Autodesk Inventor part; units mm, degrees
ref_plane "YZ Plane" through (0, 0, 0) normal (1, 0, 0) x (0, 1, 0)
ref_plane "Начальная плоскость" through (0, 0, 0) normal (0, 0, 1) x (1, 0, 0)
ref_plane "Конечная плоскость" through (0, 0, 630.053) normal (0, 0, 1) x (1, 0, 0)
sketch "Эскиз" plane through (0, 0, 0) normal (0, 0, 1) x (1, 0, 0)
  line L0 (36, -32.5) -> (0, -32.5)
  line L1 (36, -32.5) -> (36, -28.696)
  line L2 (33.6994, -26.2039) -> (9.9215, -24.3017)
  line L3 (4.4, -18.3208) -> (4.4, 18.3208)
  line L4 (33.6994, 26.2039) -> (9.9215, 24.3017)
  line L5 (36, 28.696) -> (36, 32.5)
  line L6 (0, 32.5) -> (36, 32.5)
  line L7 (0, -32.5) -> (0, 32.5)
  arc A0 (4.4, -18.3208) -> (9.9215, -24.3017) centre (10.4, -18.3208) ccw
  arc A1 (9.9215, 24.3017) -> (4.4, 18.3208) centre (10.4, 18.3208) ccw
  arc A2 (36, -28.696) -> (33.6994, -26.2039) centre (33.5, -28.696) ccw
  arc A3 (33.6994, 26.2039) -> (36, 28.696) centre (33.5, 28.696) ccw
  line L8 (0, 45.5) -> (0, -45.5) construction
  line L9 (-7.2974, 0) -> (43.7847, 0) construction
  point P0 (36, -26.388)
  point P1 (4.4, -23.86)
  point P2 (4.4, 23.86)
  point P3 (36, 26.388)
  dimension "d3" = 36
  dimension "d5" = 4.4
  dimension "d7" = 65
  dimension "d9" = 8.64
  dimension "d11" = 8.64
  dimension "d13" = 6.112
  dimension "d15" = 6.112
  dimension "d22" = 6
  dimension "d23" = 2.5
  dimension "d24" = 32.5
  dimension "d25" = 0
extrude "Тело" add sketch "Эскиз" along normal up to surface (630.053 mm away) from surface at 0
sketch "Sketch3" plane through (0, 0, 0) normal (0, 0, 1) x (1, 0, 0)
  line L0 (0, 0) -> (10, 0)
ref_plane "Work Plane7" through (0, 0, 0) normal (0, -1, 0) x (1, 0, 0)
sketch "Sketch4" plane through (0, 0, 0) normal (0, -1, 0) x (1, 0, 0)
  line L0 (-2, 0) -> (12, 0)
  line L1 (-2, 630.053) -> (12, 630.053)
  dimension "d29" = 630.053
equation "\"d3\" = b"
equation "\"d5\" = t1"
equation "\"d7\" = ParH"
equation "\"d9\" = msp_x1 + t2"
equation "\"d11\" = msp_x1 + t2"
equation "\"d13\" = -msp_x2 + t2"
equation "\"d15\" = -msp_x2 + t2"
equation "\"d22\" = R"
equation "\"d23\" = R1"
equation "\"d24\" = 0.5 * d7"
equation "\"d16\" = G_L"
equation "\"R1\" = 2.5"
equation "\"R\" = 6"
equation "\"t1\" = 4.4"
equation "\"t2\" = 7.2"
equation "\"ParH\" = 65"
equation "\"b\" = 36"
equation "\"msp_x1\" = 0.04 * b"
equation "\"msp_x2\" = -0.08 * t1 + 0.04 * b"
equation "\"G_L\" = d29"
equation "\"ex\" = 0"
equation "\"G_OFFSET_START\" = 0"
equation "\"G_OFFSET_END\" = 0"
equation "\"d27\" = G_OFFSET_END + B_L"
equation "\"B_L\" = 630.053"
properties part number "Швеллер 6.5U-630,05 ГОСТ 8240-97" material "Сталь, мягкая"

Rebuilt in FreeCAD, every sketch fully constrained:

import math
import FreeCAD as App
import Part
import Sketcher

V = App.Vector
Q = App.Units.Quantity

doc = App.newDocument("Part")
body = doc.addObject("PartDesign::Body", "Body")

sketch1 = body.newObject("Sketcher::SketchObject", "Sketch")
sketch1.AttachmentSupport = (doc.getObject("XY_Plane"), [""])
sketch1.MapMode = "FlatFace"
sketch1.addGeometry(Part.LineSegment(V(0, -32.5, 0), V(36, -32.5, 0)), False)
sketch1.addGeometry(Part.LineSegment(V(36, -32.5, 0), V(36, -28.7, 0)), False)
sketch1.addGeometry(Part.ArcOfCircle(Part.Circle(V(33.5, -28.7, 0), V(0, 0, 1), 2.5), math.radians(0), math.radians(85)), False)
sketch1.addGeometry(Part.LineSegment(V(33.7, -26.2, 0), V(9.9, -24.3, 0)), False)
sketch1.addGeometry(Part.ArcOfCircle(Part.Circle(V(10.4, -18.3, 0), V(0, 0, 1), 6), math.radians(180), math.radians(265)), False)
sketch1.addGeometry(Part.LineSegment(V(4.4, -18.3, 0), V(4.4, 18.3, 0)), False)
sketch1.addGeometry(Part.ArcOfCircle(Part.Circle(V(10.4, 18.3, 0), V(0, 0, 1), 6), math.radians(95), math.radians(180)), False)
sketch1.addGeometry(Part.LineSegment(V(9.9, 24.3, 0), V(33.7, 26.2, 0)), False)
sketch1.addGeometry(Part.ArcOfCircle(Part.Circle(V(33.5, 28.7, 0), V(0, 0, 1), 2.5), math.radians(-85), math.radians(0)), False)
sketch1.addGeometry(Part.LineSegment(V(36, 28.7, 0), V(36, 32.5, 0)), False)
sketch1.addGeometry(Part.LineSegment(V(36, 32.5, 0), V(0, 32.5, 0)), False)
sketch1.addGeometry(Part.LineSegment(V(0, 32.5, 0), V(0, -32.5, 0)), False)
sketch1.addConstraint(Sketcher.Constraint("Coincident", 0, 2, 1, 1))
sketch1.addConstraint(Sketcher.Constraint("Tangent", 1, 2, 2, 1))
sketch1.addConstraint(Sketcher.Constraint("Tangent", 2, 2, 3, 1))
sketch1.addConstraint(Sketcher.Constraint("Tangent", 3, 2, 4, 2))
sketch1.addConstraint(Sketcher.Constraint("Tangent", 4, 1, 5, 1))
sketch1.addConstraint(Sketcher.Constraint("Tangent", 5, 2, 6, 2))
sketch1.addConstraint(Sketcher.Constraint("Tangent", 6, 1, 7, 1))
sketch1.addConstraint(Sketcher.Constraint("Tangent", 7, 2, 8, 1))
sketch1.addConstraint(Sketcher.Constraint("Tangent", 8, 2, 9, 1))
sketch1.addConstraint(Sketcher.Constraint("Coincident", 9, 2, 10, 1))
sketch1.addConstraint(Sketcher.Constraint("Coincident", 10, 2, 11, 1))
sketch1.addConstraint(Sketcher.Constraint("Coincident", 11, 2, 0, 1))
sketch1.addConstraint(Sketcher.Constraint("Horizontal", 0))
sketch1.addConstraint(Sketcher.Constraint("Vertical", 1))
sketch1.addConstraint(Sketcher.Constraint("Vertical", 5))
sketch1.addConstraint(Sketcher.Constraint("Vertical", 9))
sketch1.addConstraint(Sketcher.Constraint("Horizontal", 10))
sketch1.addConstraint(Sketcher.Constraint("Vertical", 11))
sketch1.addConstraint(Sketcher.Constraint("Equal", 4, 6))
sketch1.addConstraint(Sketcher.Constraint("Equal", 2, 8))
sketch1.addConstraint(Sketcher.Constraint("Symmetric", 10, 2, 11, 2, -1, 1))
sketch1.addConstraint(Sketcher.Constraint("Symmetric", 2, 3, 8, 3, -1))
sketch1.addConstraint(Sketcher.Constraint("Vertical", 3, 2, 6, 1))
sketch1.addConstraint(Sketcher.Constraint("Radius", 4, Q("6 mm")))
sketch1.addConstraint(Sketcher.Constraint("Radius", 2, Q("2.5 mm")))
sketch1.addConstraint(Sketcher.Constraint("DistanceX", 0, 1, 0, 2, Q("36 mm")))
sketch1.addConstraint(Sketcher.Constraint("DistanceY", 11, 2, 11, 1, Q("65 mm")))
sketch1.addConstraint(Sketcher.Constraint("DistanceX", -1, 1, 4, 1, Q("4.4 mm")))
sketch1.addConstraint(Sketcher.Constraint("DistanceY", 1, 1, 1, 2, Q("3.804 mm")))
sketch1.addConstraint(Sketcher.Constraint("DistanceY", 5, 1, 5, 2, Q("36.6416 mm")))
pad1 = body.newObject("PartDesign::Pad", "Pad")
pad1.Profile = sketch1
pad1.Length = 630.053

doc.recompute()
